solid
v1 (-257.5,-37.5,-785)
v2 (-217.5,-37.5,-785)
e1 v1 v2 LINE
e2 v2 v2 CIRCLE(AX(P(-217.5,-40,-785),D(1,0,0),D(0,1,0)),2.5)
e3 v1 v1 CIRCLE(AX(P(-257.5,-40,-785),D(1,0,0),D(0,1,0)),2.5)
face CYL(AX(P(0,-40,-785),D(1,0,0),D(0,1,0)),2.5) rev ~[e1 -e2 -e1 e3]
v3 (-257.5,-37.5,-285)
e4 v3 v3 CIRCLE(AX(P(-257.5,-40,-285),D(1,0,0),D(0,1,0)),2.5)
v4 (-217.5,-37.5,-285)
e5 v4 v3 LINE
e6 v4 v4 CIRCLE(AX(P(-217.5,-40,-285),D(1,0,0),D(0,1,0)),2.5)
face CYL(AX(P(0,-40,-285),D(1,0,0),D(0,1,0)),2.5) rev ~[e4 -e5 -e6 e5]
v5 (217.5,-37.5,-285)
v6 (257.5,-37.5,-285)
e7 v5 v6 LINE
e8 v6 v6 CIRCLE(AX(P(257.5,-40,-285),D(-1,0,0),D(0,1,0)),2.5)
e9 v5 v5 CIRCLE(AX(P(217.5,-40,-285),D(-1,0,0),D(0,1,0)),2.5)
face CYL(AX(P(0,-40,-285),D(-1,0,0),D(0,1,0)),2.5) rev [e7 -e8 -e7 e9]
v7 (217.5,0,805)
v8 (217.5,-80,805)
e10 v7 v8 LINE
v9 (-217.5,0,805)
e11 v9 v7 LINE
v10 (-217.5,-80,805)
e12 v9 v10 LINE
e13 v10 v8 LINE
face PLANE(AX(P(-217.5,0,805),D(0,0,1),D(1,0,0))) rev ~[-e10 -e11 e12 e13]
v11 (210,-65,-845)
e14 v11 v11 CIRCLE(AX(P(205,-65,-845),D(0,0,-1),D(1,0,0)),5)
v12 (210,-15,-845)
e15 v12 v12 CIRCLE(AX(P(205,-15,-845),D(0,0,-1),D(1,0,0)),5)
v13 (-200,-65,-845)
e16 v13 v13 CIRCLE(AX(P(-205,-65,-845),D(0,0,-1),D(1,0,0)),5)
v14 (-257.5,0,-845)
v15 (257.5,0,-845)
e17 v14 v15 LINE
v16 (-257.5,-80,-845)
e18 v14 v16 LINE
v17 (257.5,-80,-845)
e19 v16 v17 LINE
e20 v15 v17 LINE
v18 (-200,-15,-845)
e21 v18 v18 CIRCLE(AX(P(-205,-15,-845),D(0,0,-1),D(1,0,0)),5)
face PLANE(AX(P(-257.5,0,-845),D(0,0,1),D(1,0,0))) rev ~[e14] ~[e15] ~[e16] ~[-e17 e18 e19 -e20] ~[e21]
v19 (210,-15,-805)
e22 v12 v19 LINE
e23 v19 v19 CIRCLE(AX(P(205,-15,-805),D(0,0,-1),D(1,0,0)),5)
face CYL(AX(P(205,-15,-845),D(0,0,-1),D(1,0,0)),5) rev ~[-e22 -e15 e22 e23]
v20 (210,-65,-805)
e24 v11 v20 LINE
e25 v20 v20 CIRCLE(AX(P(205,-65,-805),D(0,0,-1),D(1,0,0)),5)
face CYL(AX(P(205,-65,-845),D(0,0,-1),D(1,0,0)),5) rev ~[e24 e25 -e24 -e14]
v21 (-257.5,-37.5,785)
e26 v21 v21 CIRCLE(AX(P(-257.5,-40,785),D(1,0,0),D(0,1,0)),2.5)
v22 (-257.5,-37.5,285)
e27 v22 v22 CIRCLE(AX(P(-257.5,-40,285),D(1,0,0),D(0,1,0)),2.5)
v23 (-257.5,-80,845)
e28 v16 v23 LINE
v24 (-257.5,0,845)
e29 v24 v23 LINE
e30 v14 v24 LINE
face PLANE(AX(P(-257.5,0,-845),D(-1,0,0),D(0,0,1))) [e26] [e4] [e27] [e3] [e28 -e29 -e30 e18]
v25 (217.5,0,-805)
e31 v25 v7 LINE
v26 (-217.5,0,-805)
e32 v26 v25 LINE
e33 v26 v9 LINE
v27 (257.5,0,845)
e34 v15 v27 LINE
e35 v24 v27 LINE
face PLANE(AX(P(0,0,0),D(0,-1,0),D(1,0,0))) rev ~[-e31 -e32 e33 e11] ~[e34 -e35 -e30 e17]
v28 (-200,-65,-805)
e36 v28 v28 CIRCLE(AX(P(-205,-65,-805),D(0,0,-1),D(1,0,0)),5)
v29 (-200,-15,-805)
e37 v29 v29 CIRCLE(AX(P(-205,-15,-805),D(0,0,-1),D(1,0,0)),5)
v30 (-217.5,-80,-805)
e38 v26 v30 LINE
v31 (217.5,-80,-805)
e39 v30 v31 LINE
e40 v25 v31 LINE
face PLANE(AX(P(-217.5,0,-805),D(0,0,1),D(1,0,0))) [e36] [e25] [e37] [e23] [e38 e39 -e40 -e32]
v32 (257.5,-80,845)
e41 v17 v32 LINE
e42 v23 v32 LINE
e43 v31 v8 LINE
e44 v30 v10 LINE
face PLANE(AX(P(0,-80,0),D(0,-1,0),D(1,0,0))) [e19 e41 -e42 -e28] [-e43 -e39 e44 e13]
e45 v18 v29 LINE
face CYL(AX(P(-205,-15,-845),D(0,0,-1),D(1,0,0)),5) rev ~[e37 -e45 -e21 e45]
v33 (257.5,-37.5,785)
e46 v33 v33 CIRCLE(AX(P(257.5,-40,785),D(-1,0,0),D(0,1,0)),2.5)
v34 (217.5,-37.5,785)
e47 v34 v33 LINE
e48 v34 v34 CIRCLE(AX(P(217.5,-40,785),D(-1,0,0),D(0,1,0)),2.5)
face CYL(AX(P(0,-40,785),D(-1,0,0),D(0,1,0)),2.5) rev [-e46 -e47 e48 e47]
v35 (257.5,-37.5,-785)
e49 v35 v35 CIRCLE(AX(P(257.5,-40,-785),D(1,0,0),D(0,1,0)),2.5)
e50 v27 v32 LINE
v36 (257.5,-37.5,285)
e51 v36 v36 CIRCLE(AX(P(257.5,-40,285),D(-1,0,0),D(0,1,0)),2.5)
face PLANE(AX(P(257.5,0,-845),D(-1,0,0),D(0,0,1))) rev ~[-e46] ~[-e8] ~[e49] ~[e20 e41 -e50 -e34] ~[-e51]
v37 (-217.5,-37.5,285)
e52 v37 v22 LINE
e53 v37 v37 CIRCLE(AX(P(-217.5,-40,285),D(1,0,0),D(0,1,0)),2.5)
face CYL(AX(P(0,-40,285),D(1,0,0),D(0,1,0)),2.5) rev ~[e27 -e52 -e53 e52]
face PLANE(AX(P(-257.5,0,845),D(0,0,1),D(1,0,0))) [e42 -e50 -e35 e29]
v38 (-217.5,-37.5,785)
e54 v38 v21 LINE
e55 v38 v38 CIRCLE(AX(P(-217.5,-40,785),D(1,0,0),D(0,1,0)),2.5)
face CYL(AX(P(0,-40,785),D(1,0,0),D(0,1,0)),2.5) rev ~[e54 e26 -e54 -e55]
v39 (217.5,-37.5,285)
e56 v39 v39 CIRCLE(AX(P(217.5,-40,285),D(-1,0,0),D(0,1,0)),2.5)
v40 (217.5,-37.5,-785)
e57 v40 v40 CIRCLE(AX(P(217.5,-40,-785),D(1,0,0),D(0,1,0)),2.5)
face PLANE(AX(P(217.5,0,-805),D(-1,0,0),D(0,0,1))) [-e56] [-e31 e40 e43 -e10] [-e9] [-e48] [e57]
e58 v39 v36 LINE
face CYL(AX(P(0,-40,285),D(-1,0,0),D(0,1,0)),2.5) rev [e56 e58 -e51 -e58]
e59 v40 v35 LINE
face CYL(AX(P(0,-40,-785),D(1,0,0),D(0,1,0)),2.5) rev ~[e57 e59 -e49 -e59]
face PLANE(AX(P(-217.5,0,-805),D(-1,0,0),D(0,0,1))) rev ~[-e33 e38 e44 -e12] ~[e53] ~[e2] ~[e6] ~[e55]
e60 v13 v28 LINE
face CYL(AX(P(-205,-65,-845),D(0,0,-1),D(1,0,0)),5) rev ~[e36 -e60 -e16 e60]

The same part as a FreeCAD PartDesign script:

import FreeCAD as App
import Part
import Sketcher

V = App.Vector

doc = App.newDocument("Part")
body = doc.addObject("PartDesign::Body", "Body")

sketch1 = doc.addObject("Sketcher::SketchObject", "Sketch")
body.addObject(sketch1)
sketch1.AttachmentSupport = (doc.XZ_Plane, [""])
sketch1.MapMode = "FlatFace"
sketch1.addGeometry([
    Part.LineSegment(V(-257.5, 845, 0), V(-257.5, -845, 0)),
    Part.LineSegment(V(-257.5, -845, 0), V(257.5, -845, 0)),
    Part.LineSegment(V(257.5, -845, 0), V(257.5, 845, 0)),
    Part.LineSegment(V(257.5, 845, 0), V(-257.5, 845, 0)),
    Part.LineSegment(V(217.5, -805, 0), V(-217.5, -805, 0)),
    Part.LineSegment(V(-217.5, -805, 0), V(-217.5, 805, 0)),
    Part.LineSegment(V(-217.5, 805, 0), V(217.5, 805, 0)),
    Part.LineSegment(V(217.5, 805, 0), V(217.5, -805, 0)),
], False)
sketch1.addConstraint([
    Sketcher.Constraint("Coincident", 0, 2, 1, 1),
    Sketcher.Constraint("Coincident", 1, 2, 2, 1),
    Sketcher.Constraint("Coincident", 2, 2, 3, 1),
    Sketcher.Constraint("Coincident", 3, 2, 0, 1),
    Sketcher.Constraint("Coincident", 4, 2, 5, 1),
    Sketcher.Constraint("Coincident", 5, 2, 6, 1),
    Sketcher.Constraint("Coincident", 6, 2, 7, 1),
    Sketcher.Constraint("Coincident", 7, 2, 4, 1),
    Sketcher.Constraint("Vertical", 0),
    Sketcher.Constraint("Horizontal", 1),
    Sketcher.Constraint("Vertical", 2),
    Sketcher.Constraint("Horizontal", 3),
    Sketcher.Constraint("Horizontal", 4),
    Sketcher.Constraint("Vertical", 5),
    Sketcher.Constraint("Horizontal", 6),
    Sketcher.Constraint("Vertical", 7),
    Sketcher.Constraint("Symmetric", 0, 2, 2, 2, -1, 1),
    Sketcher.Constraint("Symmetric", 4, 2, 6, 2, -1, 1),
    Sketcher.Constraint("DistanceX", 1, 1, 1, 2, 515.0),
    Sketcher.Constraint("DistanceX", 4, 2, 4, 1, 435.0),
    Sketcher.Constraint("DistanceY", 0, 2, 0, 1, 1690.0),
    Sketcher.Constraint("DistanceY", 5, 1, 5, 2, 1610.0),
])
pad1 = doc.addObject("PartDesign::Pad", "Pad")
body.addObject(pad1)
pad1.Profile = sketch1
pad1.Length = 80

sketch2 = doc.addObject("Sketcher::SketchObject", "Sketch001")
body.addObject(sketch2)
sketch2.AttachmentSupport = (doc.XY_Plane, [""])
sketch2.MapMode = "FlatFace"
sketch2.AttachmentOffset = App.Placement(V(0, 0, -845), App.Rotation())
sketch2.addGeometry([
    Part.Circle(V(-205, -65, 0), V(0, 0, 1), 5),
    Part.Circle(V(-205, -15, 0), V(0, 0, 1), 5),
    Part.Circle(V(205, -65, 0), V(0, 0, 1), 5),
    Part.Circle(V(205, -15, 0), V(0, 0, 1), 5),
], False)
sketch2.addConstraint([
    Sketcher.Constraint("Equal", 0, 1),
    Sketcher.Constraint("Equal", 1, 2),
    Sketcher.Constraint("Equal", 2, 3),
    Sketcher.Constraint("Symmetric", 0, 3, 2, 3, -2),
    Sketcher.Constraint("Symmetric", 1, 3, 3, 3, -2),
    Sketcher.Constraint("Vertical", 0, 3, 1, 3),
    Sketcher.Constraint("Diameter", 0, 10.0),
    Sketcher.Constraint("DistanceX", 0, 3, -1, 1, 205.0),
    Sketcher.Constraint("DistanceY", 0, 3, -1, 1, 65.0),
    Sketcher.Constraint("DistanceY", 1, 3, -1, 1, 15.0),
])
pocket1 = doc.addObject("PartDesign::Pocket", "Pocket")
body.addObject(pocket1)
pocket1.Profile = sketch2
pocket1.Length = 100
pocket1.Reversed = True

sketch3 = doc.addObject("Sketcher::SketchObject", "Sketch002")
body.addObject(sketch3)
sketch3.AttachmentSupport = (doc.YZ_Plane, [""])
sketch3.MapMode = "FlatFace"
sketch3.addGeometry([
    Part.Circle(V(-40, 285, 0), V(0, 0, 1), 2.5),
    Part.Circle(V(-40, 785, 0), V(0, 0, 1), 2.5),
    Part.Circle(V(-40, -285, 0), V(0, 0, 1), 2.5),
    Part.Circle(V(-40, -785, 0), V(0, 0, 1), 2.5),
], False)
sketch3.addConstraint([
    Sketcher.Constraint("Equal", 0, 1),
    Sketcher.Constraint("Equal", 1, 2),
    Sketcher.Constraint("Equal", 2, 3),
    Sketcher.Constraint("Symmetric", 0, 3, 2, 3, -1),
    Sketcher.Constraint("Symmetric", 1, 3, 3, 3, -1),
    Sketcher.Constraint("Vertical", 0, 3, 1, 3),
    Sketcher.Constraint("Diameter", 0, 5.0),
    Sketcher.Constraint("DistanceX", 0, 3, -1, 1, 40.0),
    Sketcher.Constraint("DistanceY", -1, 1, 0, 3, 285.0),
    Sketcher.Constraint("DistanceY", -1, 1, 1, 3, 785.0),
])
pocket2 = doc.addObject("PartDesign::Pocket", "Pocket001")
body.addObject(pocket2)
pocket2.Profile = sketch3
pocket2.Length = 2000
pocket2.Midplane = True

doc.recompute()
